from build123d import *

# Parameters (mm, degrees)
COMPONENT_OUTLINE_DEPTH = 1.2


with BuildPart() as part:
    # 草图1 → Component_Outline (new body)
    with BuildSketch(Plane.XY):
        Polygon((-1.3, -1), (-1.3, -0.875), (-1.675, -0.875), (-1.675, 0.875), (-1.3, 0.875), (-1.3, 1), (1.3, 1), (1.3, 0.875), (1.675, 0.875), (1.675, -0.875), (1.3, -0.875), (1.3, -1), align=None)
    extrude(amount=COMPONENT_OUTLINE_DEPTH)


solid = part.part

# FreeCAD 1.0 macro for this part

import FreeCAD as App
import Part
import Sketcher
Q = App.Units.Quantity

doc = App.newDocument("Part")
params = doc.addObject("Spreadsheet::Sheet", "Params")
for row, (alias, value) in enumerate([
    ("sketch1_width", "2.6 mm"),
    ("sketch1_height", "1.75 mm"),
    ("pad1_length", "1.2 mm"),
], start=1):
    params.set(f"A{row}", alias)
    params.set(f"B{row}", "=" + value)
    params.setAlias(f"B{row}", alias)

body = doc.addObject("PartDesign::Body", "Body")

sketch1 = doc.addObject("Sketcher::SketchObject", "Sketch")
body.addObject(sketch1)
sketch1.AttachmentSupport = (doc.XY_Plane, [""])
sketch1.MapMode = "FlatFace"
sketch1.addGeometry([
    Part.LineSegment(App.Vector(-1.3, -0.88, 0), App.Vector(-1.3, -1, 0)),
    Part.LineSegment(App.Vector(-1.3, -1, 0), App.Vector(1.3, -1, 0)),
    Part.LineSegment(App.Vector(1.3, -1, 0), App.Vector(1.3, -0.88, 0)),
    Part.LineSegment(App.Vector(1.3, -0.88, 0), App.Vector(1.68, -0.88, 0)),
    Part.LineSegment(App.Vector(1.68, -0.88, 0), App.Vector(1.68, 0.88, 0)),
    Part.LineSegment(App.Vector(1.68, 0.88, 0), App.Vector(1.3, 0.88, 0)),
    Part.LineSegment(App.Vector(1.3, 0.88, 0), App.Vector(1.3, 1, 0)),
    Part.LineSegment(App.Vector(1.3, 1, 0), App.Vector(-1.3, 1, 0)),
    Part.LineSegment(App.Vector(-1.3, 1, 0), App.Vector(-1.3, 0.88, 0)),
    Part.LineSegment(App.Vector(-1.3, 0.88, 0), App.Vector(-1.68, 0.88, 0)),
    Part.LineSegment(App.Vector(-1.68, 0.88, 0), App.Vector(-1.68, -0.88, 0)),
    Part.LineSegment(App.Vector(-1.68, -0.88, 0), App.Vector(-1.3, -0.88, 0)),
], False)
sketch1.addConstraint([
    Sketcher.Constraint("Coincident", 0, 2, 1, 1),
    Sketcher.Constraint("Coincident", 1, 2, 2, 1),
    Sketcher.Constraint("Coincident", 2, 2, 3, 1),
    Sketcher.Constraint("Coincident", 3, 2, 4, 1),
    Sketcher.Constraint("Coincident", 4, 2, 5, 1),
    Sketcher.Constraint("Coincident", 5, 2, 6, 1),
    Sketcher.Constraint("Coincident", 6, 2, 7, 1),
    Sketcher.Constraint("Coincident", 7, 2, 8, 1),
    Sketcher.Constraint("Coincident", 8, 2, 9, 1),
    Sketcher.Constraint("Coincident", 9, 2, 10, 1),
    Sketcher.Constraint("Coincident", 10, 2, 11, 1),
    Sketcher.Constraint("Coincident", 11, 2, 0, 1),
    Sketcher.Constraint("Vertical", 0),
    Sketcher.Constraint("Horizontal", 1),
    Sketcher.Constraint("Vertical", 2),
    Sketcher.Constraint("Horizontal", 3),
    Sketcher.Constraint("Vertical", 4),
    Sketcher.Constraint("Horizontal", 5),
    Sketcher.Constraint("Vertical", 6),
    Sketcher.Constraint("Horizontal", 7),
    Sketcher.Constraint("Vertical", 8),
    Sketcher.Constraint("Horizontal", 9),
    Sketcher.Constraint("Vertical", 10),
    Sketcher.Constraint("Horizontal", 11),
    Sketcher.Constraint("Symmetric", 0, 2, 6, 2, -1, 1),
    Sketcher.Constraint("Symmetric", 2, 2, 8, 2, -1, 1),
    Sketcher.Constraint("Symmetric", 4, 2, 10, 2, -1, 1),
    Sketcher.Constraint("Symmetric", 5, 2, 8, 2, -2),
    Sketcher.Constraint("DistanceX", 1, 1, 1, 2, Q("2.6 mm")),
    Sketcher.Constraint("DistanceY", 0, 2, -1, 1, Q("1 mm")),
    Sketcher.Constraint("DistanceY", 4, 1, 4, 2, Q("1.75 mm")),
    Sketcher.Constraint("DistanceX", 3, 1, 3, 2, Q("0.375 mm")),
])
sketch1.setExpression("Constraints[28]", "Params.sketch1_width")
sketch1.setExpression("Constraints[30]", "Params.sketch1_height")
pad1 = doc.addObject("PartDesign::Pad", "Pad")
body.addObject(pad1)
pad1.Profile = sketch1
pad1.setExpression("Length", "Params.pad1_length")

doc.recompute()
